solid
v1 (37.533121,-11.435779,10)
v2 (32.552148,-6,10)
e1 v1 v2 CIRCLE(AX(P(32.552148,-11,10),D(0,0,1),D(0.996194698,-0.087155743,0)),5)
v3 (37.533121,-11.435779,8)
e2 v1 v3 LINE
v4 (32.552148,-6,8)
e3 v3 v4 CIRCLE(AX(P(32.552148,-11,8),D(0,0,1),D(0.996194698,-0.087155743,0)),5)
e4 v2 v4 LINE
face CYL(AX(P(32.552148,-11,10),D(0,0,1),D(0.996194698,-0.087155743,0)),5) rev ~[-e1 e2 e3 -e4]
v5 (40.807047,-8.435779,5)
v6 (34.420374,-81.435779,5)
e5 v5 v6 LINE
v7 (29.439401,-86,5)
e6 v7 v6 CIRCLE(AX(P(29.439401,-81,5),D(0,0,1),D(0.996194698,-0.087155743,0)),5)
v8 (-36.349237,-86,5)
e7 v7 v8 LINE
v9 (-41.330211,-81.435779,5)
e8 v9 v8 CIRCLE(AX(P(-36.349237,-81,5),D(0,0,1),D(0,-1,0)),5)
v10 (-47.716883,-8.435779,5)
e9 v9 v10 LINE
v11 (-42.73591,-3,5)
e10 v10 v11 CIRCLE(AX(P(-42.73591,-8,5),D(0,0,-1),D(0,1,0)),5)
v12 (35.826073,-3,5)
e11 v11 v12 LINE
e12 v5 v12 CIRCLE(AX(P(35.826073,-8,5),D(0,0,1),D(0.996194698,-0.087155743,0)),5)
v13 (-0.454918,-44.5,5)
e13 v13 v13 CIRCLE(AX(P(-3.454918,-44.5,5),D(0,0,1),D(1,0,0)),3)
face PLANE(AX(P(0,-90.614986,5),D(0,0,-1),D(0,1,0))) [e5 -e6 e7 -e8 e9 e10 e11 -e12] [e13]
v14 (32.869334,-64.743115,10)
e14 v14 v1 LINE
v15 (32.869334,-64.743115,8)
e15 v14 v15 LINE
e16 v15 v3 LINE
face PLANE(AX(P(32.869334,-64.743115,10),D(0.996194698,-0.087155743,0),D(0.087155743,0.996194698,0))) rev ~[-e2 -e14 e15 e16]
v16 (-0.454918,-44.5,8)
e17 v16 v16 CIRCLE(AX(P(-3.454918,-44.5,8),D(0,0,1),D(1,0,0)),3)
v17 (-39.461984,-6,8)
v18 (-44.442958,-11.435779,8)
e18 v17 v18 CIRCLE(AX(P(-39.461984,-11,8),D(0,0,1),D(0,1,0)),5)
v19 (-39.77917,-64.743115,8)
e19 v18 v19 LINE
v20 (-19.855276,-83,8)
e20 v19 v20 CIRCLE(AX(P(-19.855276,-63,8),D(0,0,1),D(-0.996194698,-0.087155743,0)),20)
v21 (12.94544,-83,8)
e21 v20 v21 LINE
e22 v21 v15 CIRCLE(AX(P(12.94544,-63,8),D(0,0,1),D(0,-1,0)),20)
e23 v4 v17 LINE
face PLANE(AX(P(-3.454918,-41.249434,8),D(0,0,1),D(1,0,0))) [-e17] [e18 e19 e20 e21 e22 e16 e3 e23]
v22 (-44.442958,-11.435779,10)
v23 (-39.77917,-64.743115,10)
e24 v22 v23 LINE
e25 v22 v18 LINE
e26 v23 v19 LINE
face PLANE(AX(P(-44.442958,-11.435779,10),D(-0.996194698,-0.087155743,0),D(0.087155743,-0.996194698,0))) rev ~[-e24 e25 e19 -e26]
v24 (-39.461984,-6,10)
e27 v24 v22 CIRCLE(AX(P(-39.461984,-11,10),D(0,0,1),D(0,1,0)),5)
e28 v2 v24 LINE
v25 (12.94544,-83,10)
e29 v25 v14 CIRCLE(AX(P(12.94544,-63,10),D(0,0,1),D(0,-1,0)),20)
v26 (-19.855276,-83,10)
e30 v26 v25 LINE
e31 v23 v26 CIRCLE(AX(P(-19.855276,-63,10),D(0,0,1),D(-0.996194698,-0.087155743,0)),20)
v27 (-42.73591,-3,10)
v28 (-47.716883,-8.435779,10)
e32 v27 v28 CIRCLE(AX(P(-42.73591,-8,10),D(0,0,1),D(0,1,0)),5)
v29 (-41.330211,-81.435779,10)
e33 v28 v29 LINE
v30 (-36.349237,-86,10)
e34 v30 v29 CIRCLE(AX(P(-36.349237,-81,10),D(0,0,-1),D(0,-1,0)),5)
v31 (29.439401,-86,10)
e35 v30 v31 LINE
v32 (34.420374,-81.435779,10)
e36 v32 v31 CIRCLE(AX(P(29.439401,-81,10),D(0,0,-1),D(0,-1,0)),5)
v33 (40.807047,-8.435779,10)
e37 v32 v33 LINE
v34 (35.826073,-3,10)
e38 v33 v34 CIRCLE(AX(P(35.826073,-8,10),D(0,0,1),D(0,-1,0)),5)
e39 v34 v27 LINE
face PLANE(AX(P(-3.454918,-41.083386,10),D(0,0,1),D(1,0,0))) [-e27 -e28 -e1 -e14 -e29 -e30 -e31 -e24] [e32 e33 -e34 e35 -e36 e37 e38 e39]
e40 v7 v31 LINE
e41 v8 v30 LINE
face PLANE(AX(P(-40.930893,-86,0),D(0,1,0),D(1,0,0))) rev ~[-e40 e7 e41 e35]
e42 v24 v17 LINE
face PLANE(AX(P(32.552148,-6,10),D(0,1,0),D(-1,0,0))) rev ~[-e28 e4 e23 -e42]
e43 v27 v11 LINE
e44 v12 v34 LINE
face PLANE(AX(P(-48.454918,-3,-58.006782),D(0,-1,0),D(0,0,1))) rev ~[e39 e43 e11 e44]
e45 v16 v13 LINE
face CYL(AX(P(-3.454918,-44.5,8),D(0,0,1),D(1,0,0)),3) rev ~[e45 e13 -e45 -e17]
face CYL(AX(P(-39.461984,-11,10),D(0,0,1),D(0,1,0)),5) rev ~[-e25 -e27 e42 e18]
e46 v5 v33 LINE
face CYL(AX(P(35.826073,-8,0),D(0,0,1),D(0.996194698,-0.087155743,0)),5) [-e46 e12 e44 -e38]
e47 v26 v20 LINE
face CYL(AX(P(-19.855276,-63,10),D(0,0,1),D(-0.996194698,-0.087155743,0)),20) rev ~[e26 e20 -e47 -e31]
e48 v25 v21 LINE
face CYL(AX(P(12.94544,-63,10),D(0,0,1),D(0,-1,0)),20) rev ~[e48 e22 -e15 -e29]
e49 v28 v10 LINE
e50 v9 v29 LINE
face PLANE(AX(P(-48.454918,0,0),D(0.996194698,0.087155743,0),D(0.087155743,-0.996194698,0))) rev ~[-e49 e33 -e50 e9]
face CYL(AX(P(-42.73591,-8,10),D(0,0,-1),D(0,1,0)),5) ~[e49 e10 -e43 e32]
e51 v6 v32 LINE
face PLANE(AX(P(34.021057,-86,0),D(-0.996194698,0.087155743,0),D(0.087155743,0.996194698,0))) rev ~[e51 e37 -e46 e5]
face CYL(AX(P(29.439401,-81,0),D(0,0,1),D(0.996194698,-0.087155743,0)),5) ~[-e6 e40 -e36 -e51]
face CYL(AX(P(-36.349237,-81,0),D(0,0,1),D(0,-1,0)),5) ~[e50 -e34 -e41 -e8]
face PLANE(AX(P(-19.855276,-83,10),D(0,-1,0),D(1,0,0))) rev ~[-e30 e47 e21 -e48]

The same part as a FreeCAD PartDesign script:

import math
import FreeCAD as App
import Part
import Sketcher
Q = App.Units.Quantity


def edges_at(feature, points):
    """Names of the edges that pass closest to the given points."""
    edges = feature.Shape.Edges
    near = lambda p: min(range(len(edges)), key=lambda i: edges[i].distToShape(Part.Vertex(*p))[0])
    return sorted({f"Edge{near(p) + 1}" for p in points})

doc = App.newDocument("Part")
body = doc.addObject("PartDesign::Body", "Body")

# Sketch on XY plane
sketch1 = body.newObject("Sketcher::SketchObject", "Sketch")
sketch1.AttachmentSupport = (doc.getObject("XY_Plane"), [""])
sketch1.MapMode = "FlatFace"
sketch1.addGeometry(Part.LineSegment(App.Vector(42, 0, 0), App.Vector(-48, 0, 0)), False)
sketch1.addGeometry(Part.LineSegment(App.Vector(-48, 0, 0), App.Vector(-41, -86, 0)), False)
sketch1.addGeometry(Part.LineSegment(App.Vector(-41, -86, 0), App.Vector(34, -86, 0)), False)
sketch1.addGeometry(Part.LineSegment(App.Vector(34, -86, 0), App.Vector(42, 0, 0)), False)
sketch1.addConstraint(Sketcher.Constraint("Coincident", 0, 2, 1, 1))
sketch1.addConstraint(Sketcher.Constraint("Coincident", 1, 2, 2, 1))
sketch1.addConstraint(Sketcher.Constraint("Coincident", 2, 2, 3, 1))
sketch1.addConstraint(Sketcher.Constraint("Coincident", 3, 2, 0, 1))
sketch1.addConstraint(Sketcher.Constraint("Horizontal", 0))
sketch1.addConstraint(Sketcher.Constraint("Horizontal", 2))
sketch1.addConstraint(Sketcher.Constraint("PointOnObject", 0, 2, -1))
sketch1.addConstraint(Sketcher.Constraint("Equal", 1, 3))
sketch1.addConstraint(Sketcher.Constraint("DistanceX", 0, 2, 0, 1, Q("90 mm")))
sketch1.addConstraint(Sketcher.Constraint("Angle", 1, Q("-85 deg")))
sketch1.addConstraint(Sketcher.Constraint("DistanceY", 1, 2, -1, 1, Q("86 mm")))
sketch1.addConstraint(Sketcher.Constraint("DistanceX", 0, 2, -1, 1, Q("48.454918 mm")))
pad1 = body.newObject("PartDesign::Pad", "Pad")
pad1.Profile = sketch1
pad1.Length = 10

# Sketch on XZ plane
sketch2 = body.newObject("Sketcher::SketchObject", "Sketch001")
sketch2.AttachmentSupport = (doc.getObject("XZ_Plane"), [""])
sketch2.MapMode = "FlatFace"
sketch2.addGeometry(Part.LineSegment(App.Vector(42, 50, 0), App.Vector(42, -40, 0)), False)
sketch2.addGeometry(Part.LineSegment(App.Vector(42, -40, 0), App.Vector(-48, -40, 0)), False)
sketch2.addGeometry(Part.LineSegment(App.Vector(-48, -40, 0), App.Vector(-48, 50, 0)), False)
sketch2.addGeometry(Part.LineSegment(App.Vector(-48, 50, 0), App.Vector(42, 50, 0)), False)
sketch2.addConstraint(Sketcher.Constraint("Coincident", 0, 2, 1, 1))
sketch2.addConstraint(Sketcher.Constraint("Coincident", 1, 2, 2, 1))
sketch2.addConstraint(Sketcher.Constraint("Coincident", 2, 2, 3, 1))
sketch2.addConstraint(Sketcher.Constraint("Coincident", 3, 2, 0, 1))
sketch2.addConstraint(Sketcher.Constraint("Vertical", 0))
sketch2.addConstraint(Sketcher.Constraint("Horizontal", 1))
sketch2.addConstraint(Sketcher.Constraint("Vertical", 2))
sketch2.addConstraint(Sketcher.Constraint("Horizontal", 3))
sketch2.addConstraint(Sketcher.Constraint("Equal", 3, 0))
sketch2.addConstraint(Sketcher.Constraint("DistanceX", 1, 2, 1, 1, Q("90 mm")))
sketch2.addConstraint(Sketcher.Constraint("DistanceY", 0, 2, -1, 1, Q("40 mm")))
sketch2.addConstraint(Sketcher.Constraint("DistanceX", -1, 1, 0, 2, Q("41.545082 mm")))
pad2 = body.newObject("PartDesign::Pad", "Pad001")
pad2.Profile = sketch2
pad2.Length = 10
pad2.Reversed = True
doc.recompute()

fillet = body.newObject("PartDesign::Fillet", "Fillet")
fillet.Base = (pad2, edges_at(pad2, [(-40.931, -86, 5), (34.021, -86, 5)]))
fillet.Radius = 5

# Sketch on XZ plane
sketch3 = body.newObject("Sketcher::SketchObject", "Sketch002")
sketch3.AttachmentSupport = (doc.getObject("XZ_Plane"), [""])
sketch3.MapMode = "FlatFace"
sketch3.addGeometry(Part.Circle(App.Vector(-28.5, 40, 0), App.Vector(0, 0, 1), 4), False)
sketch3.addGeometry(Part.Circle(App.Vector(21.5, 40, 0), App.Vector(0, 0, 1), 4), False)
sketch3.addConstraint(Sketcher.Constraint("Equal", 0, 1))
sketch3.addConstraint(Sketcher.Constraint("Horizontal", 0, 3, 1, 3))
sketch3.addConstraint(Sketcher.Constraint("Diameter", 0, Q("8 mm")))
sketch3.addConstraint(Sketcher.Constraint("DistanceY", -1, 1, 0, 3, Q("40 mm")))
sketch3.addConstraint(Sketcher.Constraint("DistanceX", 0, 3, 1, 3, Q("50 mm")))
sketch3.addConstraint(Sketcher.Constraint("DistanceX", 0, 3, -1, 1, Q("28.454918 mm")))
pocket1 = body.newObject("PartDesign::Pocket", "Pocket")
pocket1.Profile = sketch3
pocket1.Length = 25
doc.recompute()

fillet2 = body.newObject("PartDesign::Fillet", "Fillet001")
fillet2.Base = (pocket1, edges_at(pocket1, [
    (-48.455, 5, 50),
    (41.545, 5, 50),
    (41.545, 5, -40),
    (-48.455, 5, -40),
]))
fillet2.Radius = 3
doc.recompute()

fillet3 = body.newObject("PartDesign::Fillet", "Fillet002")
fillet3.Base = (fillet2, edges_at(fillet2, [(-3.455, 0, 10)]))
fillet3.Radius = 3

# Sketch on XY plane
sketch4 = body.newObject("Sketcher::SketchObject", "Sketch003")
sketch4.AttachmentSupport = (doc.getObject("XY_Plane"), [""])
sketch4.MapMode = "FlatFace"
sketch4.AttachmentOffset = App.Placement(App.Vector(0, 0, 10), App.Rotation())
sketch4.addGeometry(Part.ArcOfCircle(Part.Circle(App.Vector(33, -11, 0), App.Vector(0, 0, 1), 5), math.radians(-5), math.radians(90)), False)
sketch4.addGeometry(Part.LineSegment(App.Vector(33, -6, 0), App.Vector(-39, -6, 0)), False)
sketch4.addGeometry(Part.ArcOfCircle(Part.Circle(App.Vector(-39, -11, 0), App.Vector(0, 0, 1), 5), math.radians(90), math.radians(185)), False)
sketch4.addGeometry(Part.LineSegment(App.Vector(-44, -11, 0), App.Vector(-40, -65, 0)), False)
sketch4.addGeometry(Part.ArcOfCircle(Part.Circle(App.Vector(-20, -63, 0), App.Vector(0, 0, 1), 20), math.radians(-175), math.radians(-90)), False)
sketch4.addGeometry(Part.LineSegment(App.Vector(-20, -83, 0), App.Vector(13, -83, 0)), False)
sketch4.addGeometry(Part.ArcOfCircle(Part.Circle(App.Vector(13, -63, 0), App.Vector(0, 0, 1), 20), math.radians(-90), math.radians(-5)), False)
sketch4.addGeometry(Part.LineSegment(App.Vector(33, -65, 0), App.Vector(38, -11, 0)), False)
sketch4.addConstraint(Sketcher.Constraint("Tangent", 0, 2, 1, 1))
sketch4.addConstraint(Sketcher.Constraint("Tangent", 1, 2, 2, 1))
sketch4.addConstraint(Sketcher.Constraint("Tangent", 2, 2, 3, 1))
sketch4.addConstraint(Sketcher.Constraint("Tangent", 3, 2, 4, 1))
sketch4.addConstraint(Sketcher.Constraint("Tangent", 4, 2, 5, 1))
sketch4.addConstraint(Sketcher.Constraint("Tangent", 5, 2, 6, 1))
sketch4.addConstraint(Sketcher.Constraint("Tangent", 6, 2, 7, 1))
sketch4.addConstraint(Sketcher.Constraint("Tangent", 7, 2, 0, 1))
sketch4.addConstraint(Sketcher.Constraint("Horizontal", 1))
sketch4.addConstraint(Sketcher.Constraint("Horizontal", 5))
sketch4.addConstraint(Sketcher.Constraint("Equal", 0, 2))
sketch4.addConstraint(Sketcher.Constraint("Equal", 4, 6))
sketch4.addConstraint(Sketcher.Constraint("Horizontal", 3, 2, 6, 2))
sketch4.addConstraint(Sketcher.Constraint("Radius", 0, Q("5 mm")))
sketch4.addConstraint(Sketcher.Constraint("Radius", 4, Q("20 mm")))
sketch4.addConstraint(Sketcher.Constraint("Angle", 3, Q("-85 deg")))
sketch4.addConstraint(Sketcher.Constraint("DistanceY", 0, 3, -1, 1, Q("11 mm")))
sketch4.addConstraint(Sketcher.Constraint("DistanceY", 4, 3, -1, 1, Q("63 mm")))
sketch4.addConstraint(Sketcher.Constraint("DistanceX", 1, 2, 1, 1, Q("72.014132 mm")))
sketch4.addConstraint(Sketcher.Constraint("DistanceX", -1, 1, 6, 3, Q("12.94544 mm")))
pocket2 = body.newObject("PartDesign::Pocket", "Pocket001")
pocket2.Profile = sketch4
pocket2.Length = 2

# Sketch on XY plane
sketch5 = body.newObject("Sketcher::SketchObject", "Sketch004")
sketch5.AttachmentSupport = (doc.getObject("XY_Plane"), [""])
sketch5.MapMode = "FlatFace"
sketch5.AttachmentOffset = App.Placement(App.Vector(0, 0, 8), App.Rotation())
sketch5.addGeometry(Part.Circle(App.Vector(-3.5, -44.5, 0), App.Vector(0, 0, 1), 3), False)
sketch5.addConstraint(Sketcher.Constraint("Diameter", 0, Q("6 mm")))
sketch5.addConstraint(Sketcher.Constraint("DistanceY", 0, 3, -1, 1, Q("44.5 mm")))
sketch5.addConstraint(Sketcher.Constraint("DistanceX", 0, 3, -1, 1, Q("3.454918 mm")))
pocket3 = body.newObject("PartDesign::Pocket", "Pocket002")
pocket3.Profile = sketch5
pocket3.Length = 25

# Sketch on YZ plane
sketch6 = body.newObject("Sketcher::SketchObject", "Sketch005")
sketch6.AttachmentSupport = (doc.getObject("YZ_Plane"), [""])
sketch6.MapMode = "FlatFace"
sketch6.AttachmentOffset = App.Placement(App.Vector(0, 0, -48.454918), App.Rotation())
sketch6.addGeometry(Part.LineSegment(App.Vector(31, 63, 0), App.Vector(31, -58, 0)), False)
sketch6.addGeometry(Part.LineSegment(App.Vector(31, -58, 0), App.Vector(-3, -58, 0)), False)
sketch6.addGeometry(Part.LineSegment(App.Vector(-3, -58, 0), App.Vector(-3, 63, 0)), False)
sketch6.addGeometry(Part.LineSegment(App.Vector(-3, 63, 0), App.Vector(31, 63, 0)), False)
sketch6.addConstraint(Sketcher.Constraint("Coincident", 0, 2, 1, 1))
sketch6.addConstraint(Sketcher.Constraint("Coincident", 1, 2, 2, 1))
sketch6.addConstraint(Sketcher.Constraint("Coincident", 2, 2, 3, 1))
sketch6.addConstraint(Sketcher.Constraint("Coincident", 3, 2, 0, 1))
sketch6.addConstraint(Sketcher.Constraint("Vertical", 0))
sketch6.addConstraint(Sketcher.Constraint("Horizontal", 1))
sketch6.addConstraint(Sketcher.Constraint("Vertical", 2))
sketch6.addConstraint(Sketcher.Constraint("Horizontal", 3))
sketch6.addConstraint(Sketcher.Constraint("DistanceX", 1, 2, -1, 1, Q("3 mm")))
sketch6.addConstraint(Sketcher.Constraint("DistanceX", 1, 2, 1, 1, Q("33.655686 mm")))
sketch6.addConstraint(Sketcher.Constraint("DistanceY", 0, 2, 0, 1, Q("120.622594 mm")))
sketch6.addConstraint(Sketcher.Constraint("DistanceY", -1, 1, 2, 2, Q("62.615812 mm")))
pocket4 = body.newObject("PartDesign::Pocket", "Pocket003")
pocket4.Profile = sketch6
pocket4.Type = "ThroughAll"
pocket4.Reversed = True
doc.recompute()

fillet4 = body.newObject("PartDesign::Fillet", "Fillet003")
fillet4.Base = (pocket4, edges_at(pocket4, [(-48.192, -3, 5), (41.283, -3, 5)]))
fillet4.Radius = 5

# Sketch on YZ plane
sketch7 = body.newObject("Sketcher::SketchObject", "Sketch006")
sketch7.AttachmentSupport = (doc.getObject("YZ_Plane"), [""])
sketch7.MapMode = "FlatFace"
sketch7.addGeometry(Part.LineSegment(App.Vector(-91, 5, 0), App.Vector(-91, -8, 0)), False)
sketch7.addGeometry(Part.LineSegment(App.Vector(-91, -8, 0), App.Vector(0, -8, 0)), False)
sketch7.addGeometry(Part.LineSegment(App.Vector(0, -8, 0), App.Vector(0, 5, 0)), False)
sketch7.addGeometry(Part.LineSegment(App.Vector(0, 5, 0), App.Vector(-91, 5, 0)), False)
sketch7.addConstraint(Sketcher.Constraint("Coincident", 0, 2, 1, 1))
sketch7.addConstraint(Sketcher.Constraint("Coincident", 1, 2, 2, 1))
sketch7.addConstraint(Sketcher.Constraint("Coincident", 2, 2, 3, 1))
sketch7.addConstraint(Sketcher.Constraint("Coincident", 3, 2, 0, 1))
sketch7.addConstraint(Sketcher.Constraint("Vertical", 0))
sketch7.addConstraint(Sketcher.Constraint("Horizontal", 1))
sketch7.addConstraint(Sketcher.Constraint("Vertical", 2))
sketch7.addConstraint(Sketcher.Constraint("Horizontal", 3))
sketch7.addConstraint(Sketcher.Constraint("DistanceY", -1, 1, 2, 2, Q("5 mm")))
sketch7.addConstraint(Sketcher.Constraint("DistanceX", 1, 1, 1, 2, Q("90.239661 mm")))
sketch7.addConstraint(Sketcher.Constraint("DistanceY", 0, 2, 0, 1, Q("12.915332 mm")))
sketch7.addConstraint(Sketcher.Constraint("DistanceX", 0, 2, -1, 1, Q("90.614986 mm")))
pocket5 = body.newObject("PartDesign::Pocket", "Pocket004")
pocket5.Profile = sketch7
pocket5.Length = 100
pocket5.Midplane = True

doc.recompute()
